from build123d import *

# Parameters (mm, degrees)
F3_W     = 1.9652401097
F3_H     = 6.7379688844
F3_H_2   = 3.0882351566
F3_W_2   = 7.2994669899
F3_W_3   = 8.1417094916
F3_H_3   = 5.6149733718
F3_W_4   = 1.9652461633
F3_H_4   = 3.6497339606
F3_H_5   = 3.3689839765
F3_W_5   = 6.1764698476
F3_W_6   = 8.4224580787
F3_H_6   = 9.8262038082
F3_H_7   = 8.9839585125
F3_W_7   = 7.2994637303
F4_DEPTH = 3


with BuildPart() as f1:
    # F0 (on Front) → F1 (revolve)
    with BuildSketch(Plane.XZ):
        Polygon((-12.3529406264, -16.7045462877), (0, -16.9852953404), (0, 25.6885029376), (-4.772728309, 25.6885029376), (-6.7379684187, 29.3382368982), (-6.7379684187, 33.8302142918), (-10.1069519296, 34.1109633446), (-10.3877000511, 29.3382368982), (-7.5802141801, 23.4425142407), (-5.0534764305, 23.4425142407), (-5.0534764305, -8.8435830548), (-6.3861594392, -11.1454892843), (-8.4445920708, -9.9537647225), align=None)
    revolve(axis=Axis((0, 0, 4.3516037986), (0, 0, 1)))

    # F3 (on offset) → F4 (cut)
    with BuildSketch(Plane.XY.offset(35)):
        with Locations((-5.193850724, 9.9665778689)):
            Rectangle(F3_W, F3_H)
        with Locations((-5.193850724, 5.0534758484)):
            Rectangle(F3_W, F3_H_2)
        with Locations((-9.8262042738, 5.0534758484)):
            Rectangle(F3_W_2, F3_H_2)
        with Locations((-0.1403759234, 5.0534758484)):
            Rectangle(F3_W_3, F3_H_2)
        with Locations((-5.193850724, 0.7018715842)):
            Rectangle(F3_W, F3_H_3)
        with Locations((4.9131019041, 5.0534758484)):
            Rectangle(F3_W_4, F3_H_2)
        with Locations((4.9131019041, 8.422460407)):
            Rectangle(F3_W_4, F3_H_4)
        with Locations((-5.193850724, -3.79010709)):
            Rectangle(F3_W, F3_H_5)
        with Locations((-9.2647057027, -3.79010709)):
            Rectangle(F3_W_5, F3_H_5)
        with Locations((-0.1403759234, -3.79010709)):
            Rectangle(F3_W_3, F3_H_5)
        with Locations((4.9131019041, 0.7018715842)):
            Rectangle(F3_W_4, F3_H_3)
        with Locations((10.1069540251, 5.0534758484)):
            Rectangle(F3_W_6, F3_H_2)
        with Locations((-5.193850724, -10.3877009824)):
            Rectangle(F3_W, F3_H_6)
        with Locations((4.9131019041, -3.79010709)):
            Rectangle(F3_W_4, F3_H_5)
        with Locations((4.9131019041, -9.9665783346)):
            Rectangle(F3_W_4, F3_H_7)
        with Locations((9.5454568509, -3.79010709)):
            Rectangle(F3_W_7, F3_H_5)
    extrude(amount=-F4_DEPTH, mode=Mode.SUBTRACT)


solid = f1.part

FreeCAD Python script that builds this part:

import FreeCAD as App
import Part
import Sketcher

doc = App.newDocument("Part")
params = doc.addObject("Spreadsheet::Sheet", "Params")
for row, (alias, value) in enumerate([
    ("revolution_angle", "360 deg"),
    ("pocket1_length", "3 mm"),
], start=1):
    params.set(f"A{row}", alias)
    params.set(f"B{row}", "=" + value)
    params.setAlias(f"B{row}", alias)

body = doc.addObject("PartDesign::Body", "Body")

# Sketch on XZ plane
sketch1 = doc.addObject("Sketcher::SketchObject", "Sketch")
body.addObject(sketch1)
sketch1.AttachmentSupport = (doc.XZ_Plane, [""])
sketch1.MapMode = "FlatFace"
sketch1.addGeometry([
    Part.LineSegment(App.Vector(-12.4, -16.7, 0), App.Vector(0, -17, 0)),  # 0
    Part.LineSegment(App.Vector(0, -17, 0), App.Vector(0, 25.7, 0)),  # 1
    Part.LineSegment(App.Vector(0, 25.7, 0), App.Vector(-4.8, 25.7, 0)),  # 2
    Part.LineSegment(App.Vector(-4.8, 25.7, 0), App.Vector(-6.7, 29.3, 0)),  # 3
    Part.LineSegment(App.Vector(-6.7, 29.3, 0), App.Vector(-6.7, 33.8, 0)),  # 4
    Part.LineSegment(App.Vector(-6.7, 33.8, 0), App.Vector(-10.1, 34.1, 0)),  # 5
    Part.LineSegment(App.Vector(-10.1, 34.1, 0), App.Vector(-10.4, 29.3, 0)),  # 6
    Part.LineSegment(App.Vector(-10.4, 29.3, 0), App.Vector(-7.6, 23.4, 0)),  # 7
    Part.LineSegment(App.Vector(-7.6, 23.4, 0), App.Vector(-5.1, 23.4, 0)),  # 8
    Part.LineSegment(App.Vector(-5.1, 23.4, 0), App.Vector(-5.1, -8.8, 0)),  # 9
    Part.LineSegment(App.Vector(-5.1, -8.8, 0), App.Vector(-6.4, -11.1, 0)),  # 10
    Part.LineSegment(App.Vector(-6.4, -11.1, 0), App.Vector(-8.4, -10, 0)),  # 11
    Part.LineSegment(App.Vector(-8.4, -10, 0), App.Vector(-12.4, -16.7, 0)),  # 12
], False)
sketch1.addConstraint([
    Sketcher.Constraint("Coincident", 0, 2, 1, 1),
    Sketcher.Constraint("Coincident", 1, 2, 2, 1),
    Sketcher.Constraint("Coincident", 2, 2, 3, 1),
    Sketcher.Constraint("Coincident", 3, 2, 4, 1),
    Sketcher.Constraint("Coincident", 4, 2, 5, 1),
    Sketcher.Constraint("Coincident", 5, 2, 6, 1),
    Sketcher.Constraint("Coincident", 6, 2, 7, 1),
    Sketcher.Constraint("Coincident", 7, 2, 8, 1),
    Sketcher.Constraint("Coincident", 8, 2, 9, 1),
    Sketcher.Constraint("Coincident", 9, 2, 10, 1),
    Sketcher.Constraint("Coincident", 10, 2, 11, 1),
    Sketcher.Constraint("Coincident", 11, 2, 12, 1),
    Sketcher.Constraint("Coincident", 12, 2, 0, 1),
    Sketcher.Constraint("Vertical", 1),
    Sketcher.Constraint("Horizontal", 2),
    Sketcher.Constraint("Vertical", 4),
    Sketcher.Constraint("Horizontal", 8),
    Sketcher.Constraint("Vertical", 9),
    Sketcher.Constraint("PointOnObject", 0, 2, -2),
    Sketcher.Constraint("Perpendicular", 10, 11),
    Sketcher.Constraint("Perpendicular", 11, 12),
    Sketcher.Constraint("Horizontal", 3, 2, 6, 2),
    Sketcher.Constraint("DistanceY", 1, 1, 1, 2, 42.673798),
    Sketcher.Constraint("DistanceX", 2, 2, 2, 1, 4.772728),
    Sketcher.Constraint("DistanceX", 6, 2, -1, 1, 10.3877),
    Sketcher.Constraint("DistanceY", 7, 2, 4, 2, 10.3877),
    Sketcher.Constraint("Distance", 0, 12.356131),
    Sketcher.Constraint("Distance", 5, 3.380661),
    Sketcher.Constraint("Distance", 11, 2.378519),
    Sketcher.Constraint("Distance", 12, 7.800528),
    Sketcher.Constraint("DistanceX", 8, 1, 8, 2, 2.526738),
    Sketcher.Constraint("DistanceY", 4, 1, 4, 2, 4.491977),
    Sketcher.Constraint("DistanceY", 9, 2, 9, 1, 32.286097),
    Sketcher.Constraint("DistanceX", 3, 2, -1, 1, 6.737968),
    Sketcher.Constraint("DistanceX", 5, 2, -1, 1, 10.106952),
    Sketcher.Constraint("DistanceX", 10, 2, -1, 1, 6.386159),
    Sketcher.Constraint("DistanceY", 10, 2, -1, 1, 11.145489),
    Sketcher.Constraint("DistanceX", 12, 2, -1, 1, 12.352941),
    Sketcher.Constraint("DistanceY", 2, 2, 4, 2, 8.141711),
])
revolution = doc.addObject("PartDesign::Revolution", "Revolution")
body.addObject(revolution)
revolution.Profile = sketch1
revolution.ReferenceAxis = (sketch1, ["V_Axis"])
revolution.setExpression("Angle", "Params.revolution_angle")

# Sketch on XY plane
sketch2 = doc.addObject("Sketcher::SketchObject", "Sketch001")
body.addObject(sketch2)
sketch2.AttachmentSupport = (doc.XY_Plane, [""])
sketch2.MapMode = "FlatFace"
sketch2.AttachmentOffset = App.Placement(App.Vector(0, 0, 35), App.Rotation())
sketch2.addGeometry([
    Part.LineSegment(App.Vector(-4.2, -5.5, 0), App.Vector(3.9, -5.5, 0)),  # 0
    Part.LineSegment(App.Vector(3.9, -5.5, 0), App.Vector(3.9, -14.5, 0)),  # 1
    Part.LineSegment(App.Vector(3.9, -14.5, 0), App.Vector(5.9, -14.5, 0)),  # 2
    Part.LineSegment(App.Vector(5.9, -14.5, 0), App.Vector(5.9, -5.5, 0)),  # 3
    Part.LineSegment(App.Vector(5.9, -5.5, 0), App.Vector(13.2, -5.5, 0)),  # 4
    Part.LineSegment(App.Vector(13.2, -5.5, 0), App.Vector(13.2, -2.1, 0)),  # 5
    Part.LineSegment(App.Vector(13.2, -2.1, 0), App.Vector(5.9, -2.1, 0)),  # 6
    Part.LineSegment(App.Vector(5.9, -2.1, 0), App.Vector(5.9, 3.5, 0)),  # 7
    Part.LineSegment(App.Vector(5.9, 3.5, 0), App.Vector(14.3, 3.5, 0)),  # 8
    Part.LineSegment(App.Vector(14.3, 3.5, 0), App.Vector(14.3, 6.6, 0)),  # 9
    Part.LineSegment(App.Vector(14.3, 6.6, 0), App.Vector(5.9, 6.6, 0)),  # 10
    Part.LineSegment(App.Vector(5.9, 6.6, 0), App.Vector(5.9, 10.2, 0)),  # 11
    Part.LineSegment(App.Vector(5.9, 10.2, 0), App.Vector(3.9, 10.2, 0)),  # 12
    Part.LineSegment(App.Vector(3.9, 10.2, 0), App.Vector(3.9, 6.6, 0)),  # 13
    Part.LineSegment(App.Vector(3.9, 6.6, 0), App.Vector(-4.2, 6.6, 0)),  # 14
    Part.LineSegment(App.Vector(-4.2, 6.6, 0), App.Vector(-4.2, 13.3, 0)),  # 15
    Part.LineSegment(App.Vector(-4.2, 13.3, 0), App.Vector(-6.2, 13.3, 0)),  # 16
    Part.LineSegment(App.Vector(-6.2, 13.3, 0), App.Vector(-6.2, 6.6, 0)),  # 17
    Part.LineSegment(App.Vector(-6.2, 6.6, 0), App.Vector(-13.5, 6.6, 0)),  # 18
    Part.LineSegment(App.Vector(-13.5, 6.6, 0), App.Vector(-13.5, 3.5, 0)),  # 19
    Part.LineSegment(App.Vector(-13.5, 3.5, 0), App.Vector(-6.2, 3.5, 0)),  # 20
    Part.LineSegment(App.Vector(-6.2, 3.5, 0), App.Vector(-6.2, -2.1, 0)),  # 21
    Part.LineSegment(App.Vector(-6.2, -2.1, 0), App.Vector(-12.4, -2.1, 0)),  # 22
    Part.LineSegment(App.Vector(-12.4, -2.1, 0), App.Vector(-12.4, -5.5, 0)),  # 23
    Part.LineSegment(App.Vector(-12.4, -5.5, 0), App.Vector(-6.2, -5.5, 0)),  # 24
    Part.LineSegment(App.Vector(-6.2, -5.5, 0), App.Vector(-6.2, -15.3, 0)),  # 25
    Part.LineSegment(App.Vector(-6.2, -15.3, 0), App.Vector(-4.2, -15.3, 0)),  # 26
    Part.LineSegment(App.Vector(-4.2, -15.3, 0), App.Vector(-4.2, -5.5, 0)),  # 27
    Part.LineSegment(App.Vector(3.9, -2.1, 0), App.Vector(-4.2, -2.1, 0)),  # 28
    Part.LineSegment(App.Vector(-4.2, -2.1, 0), App.Vector(-4.2, 3.5, 0)),  # 29
    Part.LineSegment(App.Vector(-4.2, 3.5, 0), App.Vector(3.9, 3.5, 0)),  # 30
    Part.LineSegment(App.Vector(3.9, 3.5, 0), App.Vector(3.9, -2.1, 0)),  # 31
], False)
sketch2.addConstraint([
    Sketcher.Constraint("Coincident", 0, 2, 1, 1),
    Sketcher.Constraint("Coincident", 1, 2, 2, 1),
    Sketcher.Constraint("Coincident", 2, 2, 3, 1),
    Sketcher.Constraint("Coincident", 3, 2, 4, 1),
    Sketcher.Constraint("Coincident", 4, 2, 5, 1),
    Sketcher.Constraint("Coincident", 5, 2, 6, 1),
    Sketcher.Constraint("Coincident", 6, 2, 7, 1),
    Sketcher.Constraint("Coincident", 7, 2, 8, 1),
    Sketcher.Constraint("Coincident", 8, 2, 9, 1),
    Sketcher.Constraint("Coincident", 9, 2, 10, 1),
    Sketcher.Constraint("Coincident", 10, 2, 11, 1),
    Sketcher.Constraint("Coincident", 11, 2, 12, 1),
    Sketcher.Constraint("Coincident", 12, 2, 13, 1),
    Sketcher.Constraint("Coincident", 13, 2, 14, 1),
    Sketcher.Constraint("Coincident", 14, 2, 15, 1),
    Sketcher.Constraint("Coincident", 15, 2, 16, 1),
    Sketcher.Constraint("Coincident", 16, 2, 17, 1),
    Sketcher.Constraint("Coincident", 17, 2, 18, 1),
    Sketcher.Constraint("Coincident", 18, 2, 19, 1),
    Sketcher.Constraint("Coincident", 19, 2, 20, 1),
    Sketcher.Constraint("Coincident", 20, 2, 21, 1),
    Sketcher.Constraint("Coincident", 21, 2, 22, 1),
    Sketcher.Constraint("Coincident", 22, 2, 23, 1),
    Sketcher.Constraint("Coincident", 23, 2, 24, 1),
    Sketcher.Constraint("Coincident", 24, 2, 25, 1),
    Sketcher.Constraint("Coincident", 25, 2, 26, 1),
    Sketcher.Constraint("Coincident", 26, 2, 27, 1),
    Sketcher.Constraint("Coincident", 27, 2, 0, 1),
    Sketcher.Constraint("Coincident", 28, 2, 29, 1),
    Sketcher.Constraint("Coincident", 29, 2, 30, 1),
    Sketcher.Constraint("Coincident", 30, 2, 31, 1),
    Sketcher.Constraint("Coincident", 31, 2, 28, 1),
    Sketcher.Constraint("Horizontal", 0),
    Sketcher.Constraint("Vertical", 1),
    Sketcher.Constraint("Horizontal", 2),
    Sketcher.Constraint("Vertical", 3),
    Sketcher.Constraint("Horizontal", 4),
    Sketcher.Constraint("Vertical", 5),
    Sketcher.Constraint("Horizontal", 6),
    Sketcher.Constraint("Vertical", 7),
    Sketcher.Constraint("Horizontal", 8),
    Sketcher.Constraint("Vertical", 9),
    Sketcher.Constraint("Horizontal", 10),
    Sketcher.Constraint("Vertical", 11),
    Sketcher.Constraint("Horizontal", 12),
    Sketcher.Constraint("Vertical", 13),
    Sketcher.Constraint("Horizontal", 14),
    Sketcher.Constraint("Vertical", 15),
    Sketcher.Constraint("Horizontal", 16),
    Sketcher.Constraint("Vertical", 17),
    Sketcher.Constraint("Horizontal", 18),
    Sketcher.Constraint("Vertical", 19),
    Sketcher.Constraint("Horizontal", 20),
    Sketcher.Constraint("Vertical", 21),
    Sketcher.Constraint("Horizontal", 22),
    Sketcher.Constraint("Vertical", 23),
    Sketcher.Constraint("Horizontal", 24),
    Sketcher.Constraint("Vertical", 25),
    Sketcher.Constraint("Horizontal", 26),
    Sketcher.Constraint("Vertical", 27),
    Sketcher.Constraint("Horizontal", 28),
    Sketcher.Constraint("Vertical", 29),
    Sketcher.Constraint("Horizontal", 30),
    Sketcher.Constraint("Vertical", 31),
    Sketcher.Constraint("Horizontal", 0, 2, 3, 2),
    Sketcher.Constraint("Horizontal", 10, 2, 13, 2),
    Sketcher.Constraint("Horizontal", 14, 2, 17, 2),
    Sketcher.Constraint("Horizontal", 8, 2, 19, 2),
    Sketcher.Constraint("Horizontal", 6, 2, 21, 2),
    Sketcher.Constraint("Horizontal", 4, 2, 23, 2),
    Sketcher.Constraint("Horizontal", 22, 2, 28, 2),
    Sketcher.Constraint("Horizontal", 20, 2, 29, 2),
    Sketcher.Constraint("Vertical", 3, 2, 6, 2),
    Sketcher.Constraint("Vertical", 7, 2, 10, 2),
    Sketcher.Constraint("Vertical", 1, 2, 12, 2),
    Sketcher.Constraint("Vertical", 17, 2, 20, 2),
    Sketcher.Constraint("Vertical", 21, 2, 24, 2),
    Sketcher.Constraint("Vertical", 15, 2, 26, 2),
    Sketcher.Constraint("Vertical", 27, 2, 28, 2),
    Sketcher.Constraint("Vertical", 13, 2, 30, 2),
    Sketcher.Constraint("DistanceX", 0, 1, 0, 2, 8.141709),
    Sketcher.Constraint("DistanceX", 8, 1, 8, 2, 8.422458),
    Sketcher.Constraint("DistanceX", 16, 2, 16, 1, 1.96524),
    Sketcher.Constraint("DistanceX", 22, 2, 22, 1, 6.17647),
    Sketcher.Constraint("DistanceY", 1, 2, 1, 1, 8.983959),
    Sketcher.Constraint("DistanceY", 15, 1, 15, 2, 6.737969),
    Sketcher.Constraint("DistanceY", 0, 2, -1, 1, 5.474599),
    Sketcher.Constraint("DistanceX", 2, 1, 2, 2, 1.965246),
    Sketcher.Constraint("DistanceX", 4, 1, 4, 2, 7.299464),
    Sketcher.Constraint("DistanceX", 18, 2, 18, 1, 7.299467),
    Sketcher.Constraint("DistanceY", 5, 1, 5, 2, 3.368984),
    Sketcher.Constraint("DistanceY", 7, 1, 7, 2, 5.614973),
    Sketcher.Constraint("DistanceY", 9, 1, 9, 2, 3.088235),
    Sketcher.Constraint("DistanceY", 11, 1, 11, 2, 3.649734),
    Sketcher.Constraint("DistanceY", 25, 2, 25, 1, 9.826204),
    Sketcher.Constraint("DistanceX", -1, 1, 0, 2, 3.930479),
])
pocket1 = doc.addObject("PartDesign::Pocket", "Pocket")
body.addObject(pocket1)
pocket1.Profile = sketch2
pocket1.setExpression("Length", "Params.pocket1_length")

doc.recompute()
